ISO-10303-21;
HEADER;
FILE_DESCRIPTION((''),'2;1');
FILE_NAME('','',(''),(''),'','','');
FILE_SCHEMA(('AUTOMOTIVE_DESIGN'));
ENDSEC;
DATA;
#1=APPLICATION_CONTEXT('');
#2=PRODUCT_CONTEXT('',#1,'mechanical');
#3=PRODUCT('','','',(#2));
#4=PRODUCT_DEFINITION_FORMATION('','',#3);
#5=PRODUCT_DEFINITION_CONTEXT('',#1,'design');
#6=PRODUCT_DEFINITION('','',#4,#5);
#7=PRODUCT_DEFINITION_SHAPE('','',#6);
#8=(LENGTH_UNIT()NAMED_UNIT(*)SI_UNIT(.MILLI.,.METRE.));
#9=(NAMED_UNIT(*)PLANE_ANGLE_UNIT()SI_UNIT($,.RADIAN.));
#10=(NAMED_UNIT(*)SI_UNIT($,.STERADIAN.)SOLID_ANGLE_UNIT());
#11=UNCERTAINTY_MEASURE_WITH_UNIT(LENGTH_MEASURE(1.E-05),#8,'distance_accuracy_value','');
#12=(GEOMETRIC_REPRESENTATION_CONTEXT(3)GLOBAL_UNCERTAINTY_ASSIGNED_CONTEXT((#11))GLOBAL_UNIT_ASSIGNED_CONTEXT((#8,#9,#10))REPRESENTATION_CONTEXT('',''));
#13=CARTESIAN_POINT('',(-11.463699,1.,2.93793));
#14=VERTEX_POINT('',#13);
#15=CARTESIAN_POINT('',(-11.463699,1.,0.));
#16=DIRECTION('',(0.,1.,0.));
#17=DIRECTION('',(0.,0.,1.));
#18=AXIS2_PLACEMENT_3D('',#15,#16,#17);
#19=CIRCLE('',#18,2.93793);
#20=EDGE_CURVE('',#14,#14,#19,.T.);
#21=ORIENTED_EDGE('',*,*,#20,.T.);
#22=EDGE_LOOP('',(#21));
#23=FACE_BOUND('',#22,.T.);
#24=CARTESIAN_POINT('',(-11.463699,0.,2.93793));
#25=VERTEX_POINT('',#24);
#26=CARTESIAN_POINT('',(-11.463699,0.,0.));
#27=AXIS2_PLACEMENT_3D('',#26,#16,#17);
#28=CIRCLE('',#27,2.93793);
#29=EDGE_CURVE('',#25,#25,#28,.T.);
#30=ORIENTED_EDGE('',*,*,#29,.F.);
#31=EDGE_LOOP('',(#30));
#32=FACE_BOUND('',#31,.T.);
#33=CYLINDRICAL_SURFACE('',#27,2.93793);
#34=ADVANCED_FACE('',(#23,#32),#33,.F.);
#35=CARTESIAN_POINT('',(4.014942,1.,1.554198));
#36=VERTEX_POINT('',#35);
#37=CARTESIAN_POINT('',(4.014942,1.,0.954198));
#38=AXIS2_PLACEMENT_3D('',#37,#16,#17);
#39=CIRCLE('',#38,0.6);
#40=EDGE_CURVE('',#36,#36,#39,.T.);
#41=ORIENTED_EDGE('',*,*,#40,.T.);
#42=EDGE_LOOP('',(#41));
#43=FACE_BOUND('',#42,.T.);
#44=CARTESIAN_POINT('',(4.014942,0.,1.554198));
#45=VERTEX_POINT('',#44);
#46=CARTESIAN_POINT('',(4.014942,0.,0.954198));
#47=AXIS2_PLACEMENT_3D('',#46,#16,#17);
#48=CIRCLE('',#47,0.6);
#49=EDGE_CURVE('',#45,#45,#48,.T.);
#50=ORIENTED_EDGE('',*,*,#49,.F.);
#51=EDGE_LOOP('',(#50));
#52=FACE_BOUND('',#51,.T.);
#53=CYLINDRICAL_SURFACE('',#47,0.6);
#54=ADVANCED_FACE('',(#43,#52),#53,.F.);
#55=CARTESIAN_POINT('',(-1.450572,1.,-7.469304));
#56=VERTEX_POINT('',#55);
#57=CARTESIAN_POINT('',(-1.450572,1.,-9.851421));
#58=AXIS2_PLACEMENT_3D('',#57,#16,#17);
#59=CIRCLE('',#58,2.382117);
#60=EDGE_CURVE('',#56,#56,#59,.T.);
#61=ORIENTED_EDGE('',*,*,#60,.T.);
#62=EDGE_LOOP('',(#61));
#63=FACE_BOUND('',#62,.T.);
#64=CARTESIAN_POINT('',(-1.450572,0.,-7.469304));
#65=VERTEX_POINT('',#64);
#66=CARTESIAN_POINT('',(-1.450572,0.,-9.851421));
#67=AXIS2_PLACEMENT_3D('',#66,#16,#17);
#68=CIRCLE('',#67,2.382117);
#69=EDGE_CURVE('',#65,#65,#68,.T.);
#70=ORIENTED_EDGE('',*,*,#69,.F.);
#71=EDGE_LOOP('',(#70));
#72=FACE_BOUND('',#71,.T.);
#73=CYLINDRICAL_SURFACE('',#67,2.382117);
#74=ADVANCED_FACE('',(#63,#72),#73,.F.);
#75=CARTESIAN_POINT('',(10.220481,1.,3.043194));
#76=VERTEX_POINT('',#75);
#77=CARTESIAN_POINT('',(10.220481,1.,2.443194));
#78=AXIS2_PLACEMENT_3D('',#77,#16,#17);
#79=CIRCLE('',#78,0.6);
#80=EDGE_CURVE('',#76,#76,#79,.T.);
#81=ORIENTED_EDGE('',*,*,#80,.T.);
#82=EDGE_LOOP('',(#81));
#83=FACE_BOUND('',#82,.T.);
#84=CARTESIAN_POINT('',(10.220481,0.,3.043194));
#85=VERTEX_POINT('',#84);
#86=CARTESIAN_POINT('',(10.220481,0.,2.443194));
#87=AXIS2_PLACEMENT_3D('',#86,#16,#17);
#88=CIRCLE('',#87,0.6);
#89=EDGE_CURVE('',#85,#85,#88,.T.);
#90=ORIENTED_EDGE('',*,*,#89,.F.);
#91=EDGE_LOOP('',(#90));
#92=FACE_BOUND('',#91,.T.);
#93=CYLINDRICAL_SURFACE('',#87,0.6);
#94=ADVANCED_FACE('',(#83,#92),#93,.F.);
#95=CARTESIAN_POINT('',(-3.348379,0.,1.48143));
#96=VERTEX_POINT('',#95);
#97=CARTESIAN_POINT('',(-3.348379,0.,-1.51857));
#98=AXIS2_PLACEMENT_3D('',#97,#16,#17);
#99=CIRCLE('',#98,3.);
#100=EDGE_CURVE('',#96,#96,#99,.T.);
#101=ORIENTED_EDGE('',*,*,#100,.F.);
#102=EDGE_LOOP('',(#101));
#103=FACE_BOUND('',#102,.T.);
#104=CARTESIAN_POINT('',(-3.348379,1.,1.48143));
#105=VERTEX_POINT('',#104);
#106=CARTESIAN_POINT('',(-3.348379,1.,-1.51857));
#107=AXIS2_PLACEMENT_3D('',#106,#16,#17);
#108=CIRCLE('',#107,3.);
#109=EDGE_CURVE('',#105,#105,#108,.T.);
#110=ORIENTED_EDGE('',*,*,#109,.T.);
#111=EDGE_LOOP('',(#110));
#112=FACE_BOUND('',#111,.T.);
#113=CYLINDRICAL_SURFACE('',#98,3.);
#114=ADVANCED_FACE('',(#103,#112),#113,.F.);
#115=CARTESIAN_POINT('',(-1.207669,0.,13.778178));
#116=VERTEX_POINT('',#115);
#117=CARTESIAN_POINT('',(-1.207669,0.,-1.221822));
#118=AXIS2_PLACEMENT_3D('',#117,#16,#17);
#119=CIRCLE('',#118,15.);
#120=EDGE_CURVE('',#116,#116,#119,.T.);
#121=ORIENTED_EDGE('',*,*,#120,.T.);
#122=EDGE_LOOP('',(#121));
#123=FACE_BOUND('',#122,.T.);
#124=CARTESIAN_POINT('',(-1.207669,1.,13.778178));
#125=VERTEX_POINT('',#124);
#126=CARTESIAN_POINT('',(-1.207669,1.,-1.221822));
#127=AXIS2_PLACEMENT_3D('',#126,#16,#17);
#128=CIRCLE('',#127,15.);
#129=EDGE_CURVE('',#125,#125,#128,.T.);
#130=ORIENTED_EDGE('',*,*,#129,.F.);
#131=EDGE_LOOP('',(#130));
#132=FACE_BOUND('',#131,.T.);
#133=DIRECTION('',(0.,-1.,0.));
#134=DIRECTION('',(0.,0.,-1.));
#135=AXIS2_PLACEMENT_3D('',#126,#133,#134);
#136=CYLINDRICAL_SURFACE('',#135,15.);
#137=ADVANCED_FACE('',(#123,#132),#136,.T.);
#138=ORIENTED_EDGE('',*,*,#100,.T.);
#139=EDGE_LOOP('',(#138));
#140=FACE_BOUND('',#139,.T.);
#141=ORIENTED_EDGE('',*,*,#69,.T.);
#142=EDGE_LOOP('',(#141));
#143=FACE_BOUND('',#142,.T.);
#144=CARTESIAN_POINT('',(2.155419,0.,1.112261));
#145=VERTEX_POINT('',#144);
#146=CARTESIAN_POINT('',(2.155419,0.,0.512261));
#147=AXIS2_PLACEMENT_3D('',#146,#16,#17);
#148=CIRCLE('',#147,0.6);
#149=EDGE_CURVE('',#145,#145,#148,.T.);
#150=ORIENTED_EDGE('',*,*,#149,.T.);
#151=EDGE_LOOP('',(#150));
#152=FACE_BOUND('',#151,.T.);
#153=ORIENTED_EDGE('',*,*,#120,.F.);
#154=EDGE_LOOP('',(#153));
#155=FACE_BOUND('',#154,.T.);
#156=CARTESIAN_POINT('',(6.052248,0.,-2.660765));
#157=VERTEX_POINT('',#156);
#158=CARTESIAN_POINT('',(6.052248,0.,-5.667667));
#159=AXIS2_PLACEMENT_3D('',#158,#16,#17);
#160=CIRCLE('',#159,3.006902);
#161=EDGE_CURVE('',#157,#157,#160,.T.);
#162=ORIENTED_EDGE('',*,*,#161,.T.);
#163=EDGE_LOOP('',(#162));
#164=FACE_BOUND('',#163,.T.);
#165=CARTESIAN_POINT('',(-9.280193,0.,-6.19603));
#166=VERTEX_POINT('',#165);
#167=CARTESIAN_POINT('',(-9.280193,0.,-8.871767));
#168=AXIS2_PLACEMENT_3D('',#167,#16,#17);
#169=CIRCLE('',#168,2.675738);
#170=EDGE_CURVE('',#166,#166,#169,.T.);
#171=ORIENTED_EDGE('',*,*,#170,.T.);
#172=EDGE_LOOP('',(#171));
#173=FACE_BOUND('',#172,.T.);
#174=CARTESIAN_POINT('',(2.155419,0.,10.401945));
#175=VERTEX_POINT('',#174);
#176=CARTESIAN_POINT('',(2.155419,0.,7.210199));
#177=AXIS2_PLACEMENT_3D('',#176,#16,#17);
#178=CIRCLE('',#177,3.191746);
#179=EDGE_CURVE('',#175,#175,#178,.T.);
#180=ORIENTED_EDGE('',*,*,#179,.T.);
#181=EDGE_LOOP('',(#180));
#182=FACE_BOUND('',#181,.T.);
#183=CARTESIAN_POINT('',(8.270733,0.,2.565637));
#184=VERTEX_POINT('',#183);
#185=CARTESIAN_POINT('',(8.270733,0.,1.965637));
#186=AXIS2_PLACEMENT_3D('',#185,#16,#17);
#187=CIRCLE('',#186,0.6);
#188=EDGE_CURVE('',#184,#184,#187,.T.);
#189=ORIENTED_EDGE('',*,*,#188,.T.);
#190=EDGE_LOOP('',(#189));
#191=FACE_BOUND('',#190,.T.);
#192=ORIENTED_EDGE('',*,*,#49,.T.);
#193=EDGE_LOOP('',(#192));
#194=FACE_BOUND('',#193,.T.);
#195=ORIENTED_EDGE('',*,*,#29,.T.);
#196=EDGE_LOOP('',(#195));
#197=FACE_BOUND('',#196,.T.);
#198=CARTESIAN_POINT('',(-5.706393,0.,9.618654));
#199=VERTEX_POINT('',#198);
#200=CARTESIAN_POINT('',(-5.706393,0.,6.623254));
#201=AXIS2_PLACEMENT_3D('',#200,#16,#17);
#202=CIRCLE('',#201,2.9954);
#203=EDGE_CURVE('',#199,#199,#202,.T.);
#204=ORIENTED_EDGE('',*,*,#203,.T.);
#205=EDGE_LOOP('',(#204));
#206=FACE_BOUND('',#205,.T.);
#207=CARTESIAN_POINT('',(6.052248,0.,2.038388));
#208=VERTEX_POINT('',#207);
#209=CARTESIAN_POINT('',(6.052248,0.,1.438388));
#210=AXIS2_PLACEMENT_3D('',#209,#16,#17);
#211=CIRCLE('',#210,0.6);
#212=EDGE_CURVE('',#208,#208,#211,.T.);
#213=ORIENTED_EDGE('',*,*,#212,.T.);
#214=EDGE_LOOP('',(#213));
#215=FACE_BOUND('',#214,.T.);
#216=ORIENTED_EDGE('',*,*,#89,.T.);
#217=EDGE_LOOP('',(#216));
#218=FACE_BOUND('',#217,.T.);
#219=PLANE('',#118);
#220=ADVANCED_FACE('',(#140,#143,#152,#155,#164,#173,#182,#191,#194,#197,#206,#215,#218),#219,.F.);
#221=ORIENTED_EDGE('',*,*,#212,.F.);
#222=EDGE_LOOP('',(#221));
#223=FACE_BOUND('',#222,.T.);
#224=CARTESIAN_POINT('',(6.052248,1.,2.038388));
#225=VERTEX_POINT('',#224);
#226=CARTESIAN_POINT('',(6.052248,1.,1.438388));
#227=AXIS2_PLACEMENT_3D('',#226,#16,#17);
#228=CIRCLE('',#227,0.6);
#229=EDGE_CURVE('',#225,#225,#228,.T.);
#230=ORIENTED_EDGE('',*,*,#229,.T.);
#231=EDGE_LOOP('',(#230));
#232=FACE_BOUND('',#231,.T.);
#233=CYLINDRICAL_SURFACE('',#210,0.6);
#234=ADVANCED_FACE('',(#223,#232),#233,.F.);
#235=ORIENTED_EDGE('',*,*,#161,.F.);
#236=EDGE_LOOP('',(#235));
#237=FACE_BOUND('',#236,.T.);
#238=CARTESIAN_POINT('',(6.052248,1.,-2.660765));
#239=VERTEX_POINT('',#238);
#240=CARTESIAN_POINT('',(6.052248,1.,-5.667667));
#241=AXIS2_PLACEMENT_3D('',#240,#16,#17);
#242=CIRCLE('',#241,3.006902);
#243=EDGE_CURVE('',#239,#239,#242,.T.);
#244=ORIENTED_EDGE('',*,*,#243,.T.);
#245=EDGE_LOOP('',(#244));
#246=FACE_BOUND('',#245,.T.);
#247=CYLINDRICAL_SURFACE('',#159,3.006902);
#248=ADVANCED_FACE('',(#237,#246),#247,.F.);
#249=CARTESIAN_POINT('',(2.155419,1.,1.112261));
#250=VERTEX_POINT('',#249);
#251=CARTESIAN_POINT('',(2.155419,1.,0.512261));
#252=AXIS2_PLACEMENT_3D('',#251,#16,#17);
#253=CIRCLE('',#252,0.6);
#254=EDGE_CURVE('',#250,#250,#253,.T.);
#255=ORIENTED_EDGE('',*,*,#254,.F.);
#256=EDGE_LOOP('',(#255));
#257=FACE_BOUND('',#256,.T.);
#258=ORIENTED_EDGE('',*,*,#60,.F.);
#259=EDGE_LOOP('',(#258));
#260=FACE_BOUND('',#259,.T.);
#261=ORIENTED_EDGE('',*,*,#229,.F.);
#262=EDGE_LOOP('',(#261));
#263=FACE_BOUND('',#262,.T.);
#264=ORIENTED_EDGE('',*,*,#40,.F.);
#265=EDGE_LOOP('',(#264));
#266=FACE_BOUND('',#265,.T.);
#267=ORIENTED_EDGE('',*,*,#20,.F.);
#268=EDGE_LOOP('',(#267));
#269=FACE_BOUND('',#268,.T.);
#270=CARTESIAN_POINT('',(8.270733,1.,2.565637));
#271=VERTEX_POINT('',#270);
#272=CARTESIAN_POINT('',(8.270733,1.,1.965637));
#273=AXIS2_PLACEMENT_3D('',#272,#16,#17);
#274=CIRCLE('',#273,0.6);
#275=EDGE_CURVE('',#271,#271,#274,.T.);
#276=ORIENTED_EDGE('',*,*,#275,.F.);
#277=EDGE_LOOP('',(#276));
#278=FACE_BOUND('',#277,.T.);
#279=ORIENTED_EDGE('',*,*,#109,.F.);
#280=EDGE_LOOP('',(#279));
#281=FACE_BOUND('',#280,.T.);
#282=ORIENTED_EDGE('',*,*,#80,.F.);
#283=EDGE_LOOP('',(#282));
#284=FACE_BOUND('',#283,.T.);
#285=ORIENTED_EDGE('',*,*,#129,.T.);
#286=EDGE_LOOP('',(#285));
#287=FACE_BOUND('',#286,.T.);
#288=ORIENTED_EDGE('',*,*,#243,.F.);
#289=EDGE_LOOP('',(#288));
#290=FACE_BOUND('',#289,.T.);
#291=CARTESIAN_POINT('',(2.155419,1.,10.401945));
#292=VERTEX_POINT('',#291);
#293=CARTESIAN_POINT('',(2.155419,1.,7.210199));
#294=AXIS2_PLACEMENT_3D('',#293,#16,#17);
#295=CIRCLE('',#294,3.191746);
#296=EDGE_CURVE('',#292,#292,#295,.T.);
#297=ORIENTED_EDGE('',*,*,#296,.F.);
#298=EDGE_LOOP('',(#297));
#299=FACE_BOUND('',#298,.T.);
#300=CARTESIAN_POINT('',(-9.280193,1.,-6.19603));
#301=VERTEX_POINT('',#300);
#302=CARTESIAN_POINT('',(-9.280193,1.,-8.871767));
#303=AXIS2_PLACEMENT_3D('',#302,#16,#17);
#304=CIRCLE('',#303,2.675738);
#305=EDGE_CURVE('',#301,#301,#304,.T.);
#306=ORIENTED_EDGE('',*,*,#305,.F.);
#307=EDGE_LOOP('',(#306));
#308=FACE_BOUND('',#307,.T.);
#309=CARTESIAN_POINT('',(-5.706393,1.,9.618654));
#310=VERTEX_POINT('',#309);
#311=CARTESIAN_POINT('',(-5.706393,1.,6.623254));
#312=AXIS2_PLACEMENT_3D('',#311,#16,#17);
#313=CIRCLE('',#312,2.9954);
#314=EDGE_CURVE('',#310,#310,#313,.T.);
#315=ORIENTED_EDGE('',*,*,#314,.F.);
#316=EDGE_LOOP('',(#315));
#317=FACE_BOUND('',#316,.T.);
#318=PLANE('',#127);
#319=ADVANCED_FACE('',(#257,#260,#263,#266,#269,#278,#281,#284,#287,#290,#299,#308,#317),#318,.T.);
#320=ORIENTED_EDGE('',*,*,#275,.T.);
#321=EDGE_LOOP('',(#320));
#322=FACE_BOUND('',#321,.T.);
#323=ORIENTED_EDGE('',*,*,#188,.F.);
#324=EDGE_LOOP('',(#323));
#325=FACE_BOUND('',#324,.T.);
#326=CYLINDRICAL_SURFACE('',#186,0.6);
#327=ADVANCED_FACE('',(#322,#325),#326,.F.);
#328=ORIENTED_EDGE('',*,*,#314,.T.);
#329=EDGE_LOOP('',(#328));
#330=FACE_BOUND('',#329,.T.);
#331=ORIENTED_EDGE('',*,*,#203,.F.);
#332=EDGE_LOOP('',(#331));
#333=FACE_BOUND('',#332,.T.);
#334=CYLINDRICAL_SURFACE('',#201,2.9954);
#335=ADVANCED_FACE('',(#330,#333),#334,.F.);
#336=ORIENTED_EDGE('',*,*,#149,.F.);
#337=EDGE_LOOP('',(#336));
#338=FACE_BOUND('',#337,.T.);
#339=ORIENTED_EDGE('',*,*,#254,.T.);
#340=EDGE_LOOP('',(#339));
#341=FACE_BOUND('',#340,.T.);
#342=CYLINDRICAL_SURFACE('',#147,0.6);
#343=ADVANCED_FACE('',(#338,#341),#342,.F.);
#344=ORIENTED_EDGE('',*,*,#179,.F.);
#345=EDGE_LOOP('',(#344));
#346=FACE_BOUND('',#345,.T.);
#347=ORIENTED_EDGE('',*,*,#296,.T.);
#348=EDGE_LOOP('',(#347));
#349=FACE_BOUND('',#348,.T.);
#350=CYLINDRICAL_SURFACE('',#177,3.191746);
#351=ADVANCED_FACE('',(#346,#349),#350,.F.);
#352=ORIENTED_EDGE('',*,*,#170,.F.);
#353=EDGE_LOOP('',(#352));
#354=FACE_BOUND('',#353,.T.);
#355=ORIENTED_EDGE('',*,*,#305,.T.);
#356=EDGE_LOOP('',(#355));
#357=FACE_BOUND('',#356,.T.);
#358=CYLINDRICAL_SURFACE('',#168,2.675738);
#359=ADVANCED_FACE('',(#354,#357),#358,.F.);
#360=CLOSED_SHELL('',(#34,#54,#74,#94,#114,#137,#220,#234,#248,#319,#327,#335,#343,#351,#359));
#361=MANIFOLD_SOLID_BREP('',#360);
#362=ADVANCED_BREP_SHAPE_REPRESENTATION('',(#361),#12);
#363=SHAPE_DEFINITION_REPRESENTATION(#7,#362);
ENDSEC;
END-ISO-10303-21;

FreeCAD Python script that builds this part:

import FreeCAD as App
import Part
import Sketcher

V = App.Vector
Q = App.Units.Quantity

doc = App.newDocument("Part")
body = doc.addObject("PartDesign::Body", "Body")

# Sketch on XZ plane
sketch1 = body.newObject("Sketcher::SketchObject", "Sketch")
sketch1.AttachmentSupport = (doc.getObject("XZ_Plane"), [""])
sketch1.MapMode = "FlatFace"
sketch1.addGeometry(Part.Circle(V(-1, -1, 0), V(0, 0, 1), 15), False)
sketch1.addConstraint(Sketcher.Constraint("Diameter", 0, Q("30 mm")))
sketch1.addConstraint(Sketcher.Constraint("DistanceX", 0, 3, -1, 1, Q("1.207669 mm")))
sketch1.addConstraint(Sketcher.Constraint("DistanceY", 0, 3, -1, 1, Q("1.221822 mm")))
pad1 = body.newObject("PartDesign::Pad", "Pad")
pad1.Profile = sketch1
pad1.Length = 1
pad1.Reversed = True

# Sketch on XZ plane
sketch2 = body.newObject("Sketcher::SketchObject", "Sketch001")
sketch2.AttachmentSupport = (doc.getObject("XZ_Plane"), [""])
sketch2.MapMode = "FlatFace"
sketch2.AttachmentOffset = App.Placement(V(0, 0, -1), App.Rotation())
sketch2.addGeometry(Part.Circle(V(2.2, 0.5, 0), V(0, 0, 1), 0.6), False)
sketch2.addGeometry(Part.Circle(V(8.3, 2, 0), V(0, 0, 1), 0.6), False)
sketch2.addGeometry(Part.Circle(V(6.1, 1.4, 0), V(0, 0, 1), 0.6), False)
sketch2.addGeometry(Part.Circle(V(4, 1, 0), V(0, 0, 1), 0.6), False)
sketch2.addGeometry(Part.Circle(V(10.2, 2.4, 0), V(0, 0, 1), 0.6), False)
sketch2.addGeometry(Part.Circle(V(6.1, -5.7, 0), V(0, 0, 1), 3), False)
sketch2.addGeometry(Part.Circle(V(2.2, 7.2, 0), V(0, 0, 1), 3.2), False)
sketch2.addGeometry(Part.Circle(V(-1.5, -9.9, 0), V(0, 0, 1), 2.4), False)
sketch2.addGeometry(Part.Circle(V(-3.3, -1.5, 0), V(0, 0, 1), 3), False)
sketch2.addGeometry(Part.Circle(V(-5.7, 6.6, 0), V(0, 0, 1), 3), False)
sketch2.addGeometry(Part.Circle(V(-9.3, -8.9, 0), V(0, 0, 1), 2.7), False)
sketch2.addGeometry(Part.Circle(V(-11.5, 0, 0), V(0, 0, 1), 2.9), False)
sketch2.addConstraint(Sketcher.Constraint("Equal", 0, 1))
sketch2.addConstraint(Sketcher.Constraint("Equal", 1, 2))
sketch2.addConstraint(Sketcher.Constraint("Equal", 2, 3))
sketch2.addConstraint(Sketcher.Constraint("Equal", 3, 4))
sketch2.addConstraint(Sketcher.Constraint("PointOnObject", 11, 3, -1))
sketch2.addConstraint(Sketcher.Constraint("Vertical", 2, 3, 5, 3))
sketch2.addConstraint(Sketcher.Constraint("Vertical", 0, 3, 6, 3))
sketch2.addConstraint(Sketcher.Constraint("Diameter", 8, Q("6 mm")))
sketch2.addConstraint(Sketcher.Constraint("Diameter", 0, Q("1.2 mm")))
sketch2.addConstraint(Sketcher.Constraint("Diameter", 9, Q("5.9908 mm")))
sketch2.addConstraint(Sketcher.Constraint("Diameter", 11, Q("5.87586 mm")))
sketch2.addConstraint(Sketcher.Constraint("Diameter", 5, Q("6.013804 mm")))
sketch2.addConstraint(Sketcher.Constraint("Diameter", 6, Q("6.383493 mm")))
sketch2.addConstraint(Sketcher.Constraint("Diameter", 7, Q("4.764234 mm")))
sketch2.addConstraint(Sketcher.Constraint("Diameter", 10, Q("5.351475 mm")))
sketch2.addConstraint(Sketcher.Constraint("DistanceY", 3, 3, 6, 3, Q("6.256 mm")))
sketch2.addConstraint(Sketcher.Constraint("DistanceY", -1, 1, 3, 3, Q("0.954198 mm")))
sketch2.addConstraint(Sketcher.Constraint("DistanceX", 11, 3, -1, 1, Q("11.463699 mm")))
sketch2.addConstraint(Sketcher.Constraint("DistanceX", 8, 3, 0, 3, Q("5.503799 mm")))
sketch2.addConstraint(Sketcher.Constraint("DistanceY", 10, 3, 5, 3, Q("3.204101 mm")))
sketch2.addConstraint(Sketcher.Constraint("DistanceX", 10, 3, 9, 3, Q("3.573799 mm")))
sketch2.addConstraint(Sketcher.Constraint("DistanceX", -1, 1, 0, 3, Q("2.155419 mm")))
sketch2.addConstraint(Sketcher.Constraint("DistanceY", -1, 1, 0, 3, Q("0.512261 mm")))
sketch2.addConstraint(Sketcher.Constraint("DistanceY", -1, 1, 2, 3, Q("1.438388 mm")))
sketch2.addConstraint(Sketcher.Constraint("DistanceX", -1, 1, 3, 3, Q("4.014942 mm")))
sketch2.addConstraint(Sketcher.Constraint("DistanceX", -1, 1, 4, 3, Q("10.220481 mm")))
sketch2.addConstraint(Sketcher.Constraint("DistanceX", 7, 3, -1, 1, Q("1.450572 mm")))
sketch2.addConstraint(Sketcher.Constraint("DistanceY", 7, 3, -1, 1, Q("9.851421 mm")))
sketch2.addConstraint(Sketcher.Constraint("DistanceY", 8, 3, -1, 1, Q("1.51857 mm")))
sketch2.addConstraint(Sketcher.Constraint("DistanceY", 2, 3, 1, 3, Q("0.527249 mm")))
sketch2.addConstraint(Sketcher.Constraint("DistanceX", 0, 3, 2, 3, Q("3.896828 mm")))
sketch2.addConstraint(Sketcher.Constraint("DistanceX", 3, 3, 1, 3, Q("4.255791 mm")))
sketch2.addConstraint(Sketcher.Constraint("DistanceY", 5, 3, 4, 3, Q("8.11086 mm")))
sketch2.addConstraint(Sketcher.Constraint("DistanceX", 9, 3, 2, 3, Q("11.758641 mm")))
sketch2.addConstraint(Sketcher.Constraint("DistanceY", 10, 3, 0, 3, Q("9.384028 mm")))
sketch2.addConstraint(Sketcher.Constraint("DistanceY", 10, 3, 9, 3, Q("15.495021 mm")))
pocket1 = body.newObject("PartDesign::Pocket", "Pocket")
pocket1.Profile = sketch2
pocket1.Type = "ThroughAll"
pocket1.Reversed = True

doc.recompute()
